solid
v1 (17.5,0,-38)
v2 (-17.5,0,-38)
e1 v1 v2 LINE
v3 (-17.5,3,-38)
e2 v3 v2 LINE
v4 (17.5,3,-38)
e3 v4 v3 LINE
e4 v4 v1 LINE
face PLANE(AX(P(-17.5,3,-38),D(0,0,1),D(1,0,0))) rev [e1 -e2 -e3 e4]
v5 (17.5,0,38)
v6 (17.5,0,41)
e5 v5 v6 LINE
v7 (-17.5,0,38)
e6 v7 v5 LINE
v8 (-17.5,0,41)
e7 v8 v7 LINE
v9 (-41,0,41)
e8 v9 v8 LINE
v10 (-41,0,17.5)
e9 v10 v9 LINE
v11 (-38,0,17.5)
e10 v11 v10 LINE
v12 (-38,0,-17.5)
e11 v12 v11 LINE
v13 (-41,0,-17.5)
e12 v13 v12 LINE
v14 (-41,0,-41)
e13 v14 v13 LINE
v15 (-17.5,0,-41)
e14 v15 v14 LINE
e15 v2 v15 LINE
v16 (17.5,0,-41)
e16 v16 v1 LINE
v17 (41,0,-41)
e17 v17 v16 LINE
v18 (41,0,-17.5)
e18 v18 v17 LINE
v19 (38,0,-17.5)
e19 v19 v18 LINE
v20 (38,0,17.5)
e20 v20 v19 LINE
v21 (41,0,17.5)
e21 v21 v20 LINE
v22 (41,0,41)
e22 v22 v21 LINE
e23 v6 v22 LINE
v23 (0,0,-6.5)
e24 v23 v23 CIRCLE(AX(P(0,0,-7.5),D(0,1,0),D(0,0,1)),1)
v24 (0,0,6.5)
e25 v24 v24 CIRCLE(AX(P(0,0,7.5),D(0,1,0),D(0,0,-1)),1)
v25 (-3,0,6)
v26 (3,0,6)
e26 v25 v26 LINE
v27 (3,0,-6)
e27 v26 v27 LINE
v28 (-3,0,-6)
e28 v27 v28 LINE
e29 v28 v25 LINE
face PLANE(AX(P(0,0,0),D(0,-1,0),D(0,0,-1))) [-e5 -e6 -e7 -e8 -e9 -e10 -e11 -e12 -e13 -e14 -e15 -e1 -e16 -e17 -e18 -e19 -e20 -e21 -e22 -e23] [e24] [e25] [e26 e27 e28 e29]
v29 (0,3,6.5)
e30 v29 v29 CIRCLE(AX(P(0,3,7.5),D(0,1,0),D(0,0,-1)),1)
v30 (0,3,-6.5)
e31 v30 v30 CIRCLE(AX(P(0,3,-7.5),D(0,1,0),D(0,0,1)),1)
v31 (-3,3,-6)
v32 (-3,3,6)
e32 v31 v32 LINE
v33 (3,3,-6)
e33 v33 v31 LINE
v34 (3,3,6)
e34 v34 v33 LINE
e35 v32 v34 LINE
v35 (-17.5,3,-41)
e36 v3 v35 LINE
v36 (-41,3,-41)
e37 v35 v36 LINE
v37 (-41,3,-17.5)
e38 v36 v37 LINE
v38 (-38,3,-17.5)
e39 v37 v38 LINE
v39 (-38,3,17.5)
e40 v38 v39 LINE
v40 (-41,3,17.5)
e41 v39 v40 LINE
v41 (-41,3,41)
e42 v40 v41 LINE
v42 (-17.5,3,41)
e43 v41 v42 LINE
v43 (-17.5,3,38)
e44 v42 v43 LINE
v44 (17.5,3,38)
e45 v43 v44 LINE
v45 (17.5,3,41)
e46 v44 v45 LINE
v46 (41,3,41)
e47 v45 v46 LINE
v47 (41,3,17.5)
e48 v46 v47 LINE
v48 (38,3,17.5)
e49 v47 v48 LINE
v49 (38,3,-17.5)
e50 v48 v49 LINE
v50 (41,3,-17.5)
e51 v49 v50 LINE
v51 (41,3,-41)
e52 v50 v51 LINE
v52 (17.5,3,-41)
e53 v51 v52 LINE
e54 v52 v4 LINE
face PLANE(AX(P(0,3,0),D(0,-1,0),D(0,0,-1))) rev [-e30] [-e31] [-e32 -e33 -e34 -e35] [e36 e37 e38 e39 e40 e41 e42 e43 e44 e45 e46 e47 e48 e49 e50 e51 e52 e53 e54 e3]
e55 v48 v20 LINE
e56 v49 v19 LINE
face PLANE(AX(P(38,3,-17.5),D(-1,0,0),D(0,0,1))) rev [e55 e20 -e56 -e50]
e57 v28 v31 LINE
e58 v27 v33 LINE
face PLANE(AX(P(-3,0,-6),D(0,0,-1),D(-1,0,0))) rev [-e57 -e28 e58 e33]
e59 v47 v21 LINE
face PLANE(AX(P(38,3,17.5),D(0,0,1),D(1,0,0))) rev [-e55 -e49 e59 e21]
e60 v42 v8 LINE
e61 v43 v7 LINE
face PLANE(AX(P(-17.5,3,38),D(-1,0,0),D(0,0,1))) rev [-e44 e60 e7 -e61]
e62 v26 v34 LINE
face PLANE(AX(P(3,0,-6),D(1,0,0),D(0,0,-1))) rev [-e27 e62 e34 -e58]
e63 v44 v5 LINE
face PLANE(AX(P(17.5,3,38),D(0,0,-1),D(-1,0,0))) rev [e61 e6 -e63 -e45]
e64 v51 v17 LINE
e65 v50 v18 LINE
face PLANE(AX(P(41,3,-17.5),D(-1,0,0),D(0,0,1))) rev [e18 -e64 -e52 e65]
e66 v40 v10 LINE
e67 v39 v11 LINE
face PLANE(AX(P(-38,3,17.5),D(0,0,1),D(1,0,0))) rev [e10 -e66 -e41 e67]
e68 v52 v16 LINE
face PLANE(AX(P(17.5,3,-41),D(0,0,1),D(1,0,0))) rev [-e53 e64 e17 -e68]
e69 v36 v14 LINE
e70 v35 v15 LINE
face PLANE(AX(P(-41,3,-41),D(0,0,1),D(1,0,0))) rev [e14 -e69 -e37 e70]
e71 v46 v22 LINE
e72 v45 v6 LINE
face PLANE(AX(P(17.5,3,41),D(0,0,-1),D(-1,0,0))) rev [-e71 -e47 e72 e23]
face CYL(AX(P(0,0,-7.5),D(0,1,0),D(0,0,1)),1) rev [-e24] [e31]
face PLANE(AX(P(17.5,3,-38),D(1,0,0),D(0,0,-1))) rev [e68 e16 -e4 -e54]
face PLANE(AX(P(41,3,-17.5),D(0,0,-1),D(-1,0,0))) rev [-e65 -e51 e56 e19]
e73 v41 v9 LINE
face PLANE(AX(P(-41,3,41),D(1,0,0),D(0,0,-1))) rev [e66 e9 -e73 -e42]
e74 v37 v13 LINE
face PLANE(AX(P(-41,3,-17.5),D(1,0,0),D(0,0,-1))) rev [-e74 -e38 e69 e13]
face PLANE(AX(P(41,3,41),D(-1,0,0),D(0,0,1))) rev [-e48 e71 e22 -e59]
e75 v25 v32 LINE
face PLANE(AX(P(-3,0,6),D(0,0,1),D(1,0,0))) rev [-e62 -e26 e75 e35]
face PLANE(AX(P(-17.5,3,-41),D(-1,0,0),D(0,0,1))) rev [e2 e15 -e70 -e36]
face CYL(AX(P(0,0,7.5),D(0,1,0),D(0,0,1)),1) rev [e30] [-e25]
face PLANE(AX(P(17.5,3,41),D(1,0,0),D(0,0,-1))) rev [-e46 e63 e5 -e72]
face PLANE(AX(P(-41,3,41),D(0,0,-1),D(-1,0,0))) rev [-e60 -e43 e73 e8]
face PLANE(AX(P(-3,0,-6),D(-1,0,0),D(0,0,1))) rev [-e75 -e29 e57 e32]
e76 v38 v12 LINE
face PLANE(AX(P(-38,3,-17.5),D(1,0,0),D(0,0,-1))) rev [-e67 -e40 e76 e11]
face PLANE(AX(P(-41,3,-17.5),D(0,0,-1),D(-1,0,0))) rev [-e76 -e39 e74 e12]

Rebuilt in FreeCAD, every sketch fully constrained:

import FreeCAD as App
import Part
import Sketcher

V = App.Vector

doc = App.newDocument("Part")
body = doc.addObject("PartDesign::Body", "Body")

# Sketch on XZ plane
sketch1 = body.newObject("Sketcher::SketchObject", "Sketch")
sketch1.AttachmentSupport = (doc.getObject("XZ_Plane"), [""])
sketch1.MapMode = "FlatFace"
sketch1.addGeometry([
    Part.LineSegment(V(-41, 41, 0), V(-17.5, 41, 0)),  # 0
    Part.LineSegment(V(-17.5, 41, 0), V(-17.5, 38, 0)),  # 1
    Part.LineSegment(V(-17.5, 38, 0), V(17.5, 38, 0)),  # 2
    Part.LineSegment(V(17.5, 38, 0), V(17.5, 41, 0)),  # 3
    Part.LineSegment(V(17.5, 41, 0), V(41, 41, 0)),  # 4
    Part.LineSegment(V(41, 41, 0), V(41, 17.5, 0)),  # 5
    Part.LineSegment(V(41, 17.5, 0), V(38, 17.5, 0)),  # 6
    Part.LineSegment(V(38, 17.5, 0), V(38, -17.5, 0)),  # 7
    Part.LineSegment(V(38, -17.5, 0), V(41, -17.5, 0)),  # 8
    Part.LineSegment(V(41, -17.5, 0), V(41, -41, 0)),  # 9
    Part.LineSegment(V(41, -41, 0), V(17.5, -41, 0)),  # 10
    Part.LineSegment(V(17.5, -41, 0), V(17.5, -38, 0)),  # 11
    Part.LineSegment(V(17.5, -38, 0), V(-17.5, -38, 0)),  # 12
    Part.LineSegment(V(-17.5, -38, 0), V(-17.5, -41, 0)),  # 13
    Part.LineSegment(V(-17.5, -41, 0), V(-41, -41, 0)),  # 14
    Part.LineSegment(V(-41, -41, 0), V(-41, -17.5, 0)),  # 15
    Part.LineSegment(V(-41, -17.5, 0), V(-38, -17.5, 0)),  # 16
    Part.LineSegment(V(-38, -17.5, 0), V(-38, 17.5, 0)),  # 17
    Part.LineSegment(V(-38, 17.5, 0), V(-41, 17.5, 0)),  # 18
    Part.LineSegment(V(-41, 17.5, 0), V(-41, 41, 0)),  # 19
], False)
sketch1.addConstraint([
    Sketcher.Constraint("Coincident", 0, 2, 1, 1),
    Sketcher.Constraint("Coincident", 1, 2, 2, 1),
    Sketcher.Constraint("Coincident", 2, 2, 3, 1),
    Sketcher.Constraint("Coincident", 3, 2, 4, 1),
    Sketcher.Constraint("Coincident", 4, 2, 5, 1),
    Sketcher.Constraint("Coincident", 5, 2, 6, 1),
    Sketcher.Constraint("Coincident", 6, 2, 7, 1),
    Sketcher.Constraint("Coincident", 7, 2, 8, 1),
    Sketcher.Constraint("Coincident", 8, 2, 9, 1),
    Sketcher.Constraint("Coincident", 9, 2, 10, 1),
    Sketcher.Constraint("Coincident", 10, 2, 11, 1),
    Sketcher.Constraint("Coincident", 11, 2, 12, 1),
    Sketcher.Constraint("Coincident", 12, 2, 13, 1),
    Sketcher.Constraint("Coincident", 13, 2, 14, 1),
    Sketcher.Constraint("Coincident", 14, 2, 15, 1),
    Sketcher.Constraint("Coincident", 15, 2, 16, 1),
    Sketcher.Constraint("Coincident", 16, 2, 17, 1),
    Sketcher.Constraint("Coincident", 17, 2, 18, 1),
    Sketcher.Constraint("Coincident", 18, 2, 19, 1),
    Sketcher.Constraint("Coincident", 19, 2, 0, 1),
    Sketcher.Constraint("Horizontal", 0),
    Sketcher.Constraint("Vertical", 1),
    Sketcher.Constraint("Horizontal", 2),
    Sketcher.Constraint("Vertical", 3),
    Sketcher.Constraint("Horizontal", 4),
    Sketcher.Constraint("Vertical", 5),
    Sketcher.Constraint("Horizontal", 6),
    Sketcher.Constraint("Vertical", 7),
    Sketcher.Constraint("Horizontal", 8),
    Sketcher.Constraint("Vertical", 9),
    Sketcher.Constraint("Horizontal", 10),
    Sketcher.Constraint("Vertical", 11),
    Sketcher.Constraint("Horizontal", 12),
    Sketcher.Constraint("Vertical", 13),
    Sketcher.Constraint("Horizontal", 14),
    Sketcher.Constraint("Vertical", 15),
    Sketcher.Constraint("Horizontal", 16),
    Sketcher.Constraint("Vertical", 17),
    Sketcher.Constraint("Horizontal", 18),
    Sketcher.Constraint("Vertical", 19),
    Sketcher.Constraint("Symmetric", 0, 2, 10, 2, -1, 1),
    Sketcher.Constraint("Symmetric", 2, 2, 12, 2, -1, 1),
    Sketcher.Constraint("Symmetric", 4, 2, 14, 2, -1, 1),
    Sketcher.Constraint("Symmetric", 6, 2, 16, 2, -1, 1),
    Sketcher.Constraint("Symmetric", 8, 2, 18, 2, -1, 1),
    Sketcher.Constraint("Symmetric", 0, 2, 3, 2, -2),
    Sketcher.Constraint("Symmetric", 8, 2, 15, 2, -2),
    Sketcher.Constraint("Equal", 18, 1),
    Sketcher.Constraint("Equal", 14, 5),
    Sketcher.Constraint("Equal", 12, 7),
    Sketcher.Constraint("DistanceX", 2, 1, 2, 2, 35.0),
    Sketcher.Constraint("DistanceX", 6, 2, 6, 1, 3.0),
    Sketcher.Constraint("DistanceX", 0, 1, 0, 2, 23.5),
])
pad1 = body.newObject("PartDesign::Pad", "Pad")
pad1.Profile = sketch1
pad1.Length = 3
pad1.Reversed = True

# Sketch on XZ plane
sketch2 = body.newObject("Sketcher::SketchObject", "Sketch001")
sketch2.AttachmentSupport = (doc.getObject("XZ_Plane"), [""])
sketch2.MapMode = "FlatFace"
sketch2.AttachmentOffset = App.Placement(V(0, 0, -3), App.Rotation())
sketch2.addGeometry([
    Part.Circle(V(0, -7.5, 0), V(0, 0, 1), 1),  # 0
    Part.Circle(V(0, 7.5, 0), V(0, 0, 1), 1),  # 1
    Part.LineSegment(V(-3, -6, 0), V(-3, 6, 0)),  # 2
    Part.LineSegment(V(-3, 6, 0), V(3, 6, 0)),  # 3
    Part.LineSegment(V(3, 6, 0), V(3, -6, 0)),  # 4
    Part.LineSegment(V(3, -6, 0), V(-3, -6, 0)),  # 5
], False)
sketch2.addConstraint([
    Sketcher.Constraint("Coincident", 2, 2, 3, 1),
    Sketcher.Constraint("Coincident", 3, 2, 4, 1),
    Sketcher.Constraint("Coincident", 4, 2, 5, 1),
    Sketcher.Constraint("Coincident", 5, 2, 2, 1),
    Sketcher.Constraint("Vertical", 2),
    Sketcher.Constraint("Horizontal", 3),
    Sketcher.Constraint("Vertical", 4),
    Sketcher.Constraint("Horizontal", 5),
    Sketcher.Constraint("Equal", 0, 1),
    Sketcher.Constraint("Symmetric", 0, 3, 1, 3, -1, 1),
    Sketcher.Constraint("Symmetric", 2, 2, 4, 2, -1, 1),
    Sketcher.Constraint("PointOnObject", 0, 3, -2),
    Sketcher.Constraint("Diameter", 0, 2.0),
    Sketcher.Constraint("DistanceX", 3, 1, 3, 2, 6.0),
    Sketcher.Constraint("DistanceY", 2, 1, 2, 2, 12.0),
    Sketcher.Constraint("DistanceY", 0, 3, 1, 3, 15.0),
])
pocket1 = body.newObject("PartDesign::Pocket", "Pocket")
pocket1.Profile = sketch2
pocket1.Length = 3
pocket1.Reversed = True

doc.recompute()
